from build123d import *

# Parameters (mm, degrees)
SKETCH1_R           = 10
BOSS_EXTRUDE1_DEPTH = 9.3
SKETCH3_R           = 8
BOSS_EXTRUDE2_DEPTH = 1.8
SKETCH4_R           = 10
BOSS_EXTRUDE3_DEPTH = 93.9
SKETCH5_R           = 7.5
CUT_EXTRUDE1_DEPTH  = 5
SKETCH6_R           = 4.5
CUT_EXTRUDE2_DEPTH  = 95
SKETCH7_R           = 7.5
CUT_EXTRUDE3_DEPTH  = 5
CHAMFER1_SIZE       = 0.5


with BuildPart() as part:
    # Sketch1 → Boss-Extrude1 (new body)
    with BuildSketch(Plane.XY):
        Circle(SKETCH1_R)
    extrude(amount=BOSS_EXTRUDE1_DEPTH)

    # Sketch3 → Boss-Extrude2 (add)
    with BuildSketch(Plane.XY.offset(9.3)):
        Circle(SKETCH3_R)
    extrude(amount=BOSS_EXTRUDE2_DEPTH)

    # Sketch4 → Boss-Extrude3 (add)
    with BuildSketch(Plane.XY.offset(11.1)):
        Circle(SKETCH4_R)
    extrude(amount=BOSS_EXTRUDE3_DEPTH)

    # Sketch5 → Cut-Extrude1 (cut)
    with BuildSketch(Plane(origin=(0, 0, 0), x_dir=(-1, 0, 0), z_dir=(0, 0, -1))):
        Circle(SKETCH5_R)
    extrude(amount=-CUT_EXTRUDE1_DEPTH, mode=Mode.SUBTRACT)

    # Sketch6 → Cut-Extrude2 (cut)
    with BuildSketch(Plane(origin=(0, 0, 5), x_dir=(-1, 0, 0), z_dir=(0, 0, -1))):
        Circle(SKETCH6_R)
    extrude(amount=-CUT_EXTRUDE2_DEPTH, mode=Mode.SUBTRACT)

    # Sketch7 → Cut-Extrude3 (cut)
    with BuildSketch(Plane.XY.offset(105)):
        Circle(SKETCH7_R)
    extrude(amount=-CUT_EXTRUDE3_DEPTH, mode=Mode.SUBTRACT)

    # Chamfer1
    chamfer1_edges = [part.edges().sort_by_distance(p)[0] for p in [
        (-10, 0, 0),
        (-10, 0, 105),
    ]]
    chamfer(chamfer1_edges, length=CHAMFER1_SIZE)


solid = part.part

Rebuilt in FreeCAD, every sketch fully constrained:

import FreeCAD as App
import Part
import Sketcher

V = App.Vector
Q = App.Units.Quantity


def edges_at(feature, points):
    """Names of the edges that pass closest to the given points."""
    edges = feature.Shape.Edges
    near = lambda p: min(range(len(edges)), key=lambda i: edges[i].distToShape(Part.Vertex(*p))[0])
    return sorted({f"Edge{near(p) + 1}" for p in points})

doc = App.newDocument("Part")
params = doc.addObject("Spreadsheet::Sheet", "Params")
for row, (alias, value) in enumerate([
    ("sketch1_diameter", "20 mm"),
    ("pad1_length", "9.3 mm"),
    ("sketch2_diameter", "16 mm"),
    ("pad2_length", "1.8 mm"),
    ("sketch3_diameter", "20 mm"),
    ("pad3_length", "93.9 mm"),
    ("sketch4_diameter", "15 mm"),
    ("pocket1_length", "5 mm"),
    ("sketch5_diameter", "9 mm"),
    ("pocket2_length", "95 mm"),
    ("sketch6_diameter", "15 mm"),
    ("pocket3_length", "5 mm"),
    ("chamfer_size", "0.5 mm"),
], start=1):
    params.set(f"A{row}", alias)
    params.set(f"B{row}", "=" + value)
    params.setAlias(f"B{row}", alias)

body = doc.addObject("PartDesign::Body", "Body")

# Sketch on XY plane
sketch1 = body.newObject("Sketcher::SketchObject", "Sketch")
sketch1.AttachmentSupport = (doc.getObject("XY_Plane"), [""])
sketch1.MapMode = "FlatFace"
sketch1.addGeometry(Part.Circle(V(0, 0, 0), V(0, 0, 1), 10), False)
sketch1.addConstraint(Sketcher.Constraint("Coincident", 0, 3, -1, 1))
sketch1.addConstraint(Sketcher.Constraint("Diameter", 0, Q("20 mm")))
sketch1.setExpression("Constraints[1]", "Params.sketch1_diameter")
pad1 = body.newObject("PartDesign::Pad", "Pad")
pad1.Profile = sketch1
pad1.setExpression("Length", "Params.pad1_length")

# Sketch on XY plane
sketch2 = body.newObject("Sketcher::SketchObject", "Sketch001")
sketch2.AttachmentSupport = (doc.getObject("XY_Plane"), [""])
sketch2.MapMode = "FlatFace"
sketch2.AttachmentOffset = App.Placement(V(0, 0, 9.3), App.Rotation())
sketch2.addGeometry(Part.Circle(V(0, 0, 0), V(0, 0, 1), 8), False)
sketch2.addConstraint(Sketcher.Constraint("Coincident", 0, 3, -1, 1))
sketch2.addConstraint(Sketcher.Constraint("Diameter", 0, Q("16 mm")))
sketch2.setExpression("Constraints[1]", "Params.sketch2_diameter")
pad2 = body.newObject("PartDesign::Pad", "Pad001")
pad2.Profile = sketch2
pad2.setExpression("Length", "Params.pad2_length")

# Sketch on XY plane
sketch3 = body.newObject("Sketcher::SketchObject", "Sketch002")
sketch3.AttachmentSupport = (doc.getObject("XY_Plane"), [""])
sketch3.MapMode = "FlatFace"
sketch3.AttachmentOffset = App.Placement(V(0, 0, 11.1), App.Rotation())
sketch3.addGeometry(Part.Circle(V(0, 0, 0), V(0, 0, 1), 10), False)
sketch3.addConstraint(Sketcher.Constraint("Coincident", 0, 3, -1, 1))
sketch3.addConstraint(Sketcher.Constraint("Diameter", 0, Q("20 mm")))
sketch3.setExpression("Constraints[1]", "Params.sketch3_diameter")
pad3 = body.newObject("PartDesign::Pad", "Pad002")
pad3.Profile = sketch3
pad3.setExpression("Length", "Params.pad3_length")

# Sketch on XY plane
sketch4 = body.newObject("Sketcher::SketchObject", "Sketch003")
sketch4.AttachmentSupport = (doc.getObject("XY_Plane"), [""])
sketch4.MapMode = "FlatFace"
sketch4.addGeometry(Part.Circle(V(0, 0, 0), V(0, 0, 1), 7.5), False)
sketch4.addConstraint(Sketcher.Constraint("Coincident", 0, 3, -1, 1))
sketch4.addConstraint(Sketcher.Constraint("Diameter", 0, Q("15 mm")))
sketch4.setExpression("Constraints[1]", "Params.sketch4_diameter")
pocket1 = body.newObject("PartDesign::Pocket", "Pocket")
pocket1.Profile = sketch4
pocket1.setExpression("Length", "Params.pocket1_length")
pocket1.Reversed = True

# Sketch on XY plane
sketch5 = body.newObject("Sketcher::SketchObject", "Sketch004")
sketch5.AttachmentSupport = (doc.getObject("XY_Plane"), [""])
sketch5.MapMode = "FlatFace"
sketch5.AttachmentOffset = App.Placement(V(0, 0, 5), App.Rotation())
sketch5.addGeometry(Part.Circle(V(0, 0, 0), V(0, 0, 1), 4.5), False)
sketch5.addConstraint(Sketcher.Constraint("Coincident", 0, 3, -1, 1))
sketch5.addConstraint(Sketcher.Constraint("Diameter", 0, Q("9 mm")))
sketch5.setExpression("Constraints[1]", "Params.sketch5_diameter")
pocket2 = body.newObject("PartDesign::Pocket", "Pocket001")
pocket2.Profile = sketch5
pocket2.setExpression("Length", "Params.pocket2_length")
pocket2.Reversed = True

# Sketch on XY plane
sketch6 = body.newObject("Sketcher::SketchObject", "Sketch005")
sketch6.AttachmentSupport = (doc.getObject("XY_Plane"), [""])
sketch6.MapMode = "FlatFace"
sketch6.AttachmentOffset = App.Placement(V(0, 0, 105), App.Rotation())
sketch6.addGeometry(Part.Circle(V(0, 0, 0), V(0, 0, 1), 7.5), False)
sketch6.addConstraint(Sketcher.Constraint("Coincident", 0, 3, -1, 1))
sketch6.addConstraint(Sketcher.Constraint("Diameter", 0, Q("15 mm")))
sketch6.setExpression("Constraints[1]", "Params.sketch6_diameter")
pocket3 = body.newObject("PartDesign::Pocket", "Pocket002")
pocket3.Profile = sketch6
pocket3.setExpression("Length", "Params.pocket3_length")
doc.recompute()

chamfer = body.newObject("PartDesign::Chamfer", "Chamfer")
chamfer.Base = (pocket3, edges_at(pocket3, [(-10, 0, 0), (-10, 0, 105)]))
chamfer.setExpression("Size", "Params.chamfer_size")

doc.recompute()
